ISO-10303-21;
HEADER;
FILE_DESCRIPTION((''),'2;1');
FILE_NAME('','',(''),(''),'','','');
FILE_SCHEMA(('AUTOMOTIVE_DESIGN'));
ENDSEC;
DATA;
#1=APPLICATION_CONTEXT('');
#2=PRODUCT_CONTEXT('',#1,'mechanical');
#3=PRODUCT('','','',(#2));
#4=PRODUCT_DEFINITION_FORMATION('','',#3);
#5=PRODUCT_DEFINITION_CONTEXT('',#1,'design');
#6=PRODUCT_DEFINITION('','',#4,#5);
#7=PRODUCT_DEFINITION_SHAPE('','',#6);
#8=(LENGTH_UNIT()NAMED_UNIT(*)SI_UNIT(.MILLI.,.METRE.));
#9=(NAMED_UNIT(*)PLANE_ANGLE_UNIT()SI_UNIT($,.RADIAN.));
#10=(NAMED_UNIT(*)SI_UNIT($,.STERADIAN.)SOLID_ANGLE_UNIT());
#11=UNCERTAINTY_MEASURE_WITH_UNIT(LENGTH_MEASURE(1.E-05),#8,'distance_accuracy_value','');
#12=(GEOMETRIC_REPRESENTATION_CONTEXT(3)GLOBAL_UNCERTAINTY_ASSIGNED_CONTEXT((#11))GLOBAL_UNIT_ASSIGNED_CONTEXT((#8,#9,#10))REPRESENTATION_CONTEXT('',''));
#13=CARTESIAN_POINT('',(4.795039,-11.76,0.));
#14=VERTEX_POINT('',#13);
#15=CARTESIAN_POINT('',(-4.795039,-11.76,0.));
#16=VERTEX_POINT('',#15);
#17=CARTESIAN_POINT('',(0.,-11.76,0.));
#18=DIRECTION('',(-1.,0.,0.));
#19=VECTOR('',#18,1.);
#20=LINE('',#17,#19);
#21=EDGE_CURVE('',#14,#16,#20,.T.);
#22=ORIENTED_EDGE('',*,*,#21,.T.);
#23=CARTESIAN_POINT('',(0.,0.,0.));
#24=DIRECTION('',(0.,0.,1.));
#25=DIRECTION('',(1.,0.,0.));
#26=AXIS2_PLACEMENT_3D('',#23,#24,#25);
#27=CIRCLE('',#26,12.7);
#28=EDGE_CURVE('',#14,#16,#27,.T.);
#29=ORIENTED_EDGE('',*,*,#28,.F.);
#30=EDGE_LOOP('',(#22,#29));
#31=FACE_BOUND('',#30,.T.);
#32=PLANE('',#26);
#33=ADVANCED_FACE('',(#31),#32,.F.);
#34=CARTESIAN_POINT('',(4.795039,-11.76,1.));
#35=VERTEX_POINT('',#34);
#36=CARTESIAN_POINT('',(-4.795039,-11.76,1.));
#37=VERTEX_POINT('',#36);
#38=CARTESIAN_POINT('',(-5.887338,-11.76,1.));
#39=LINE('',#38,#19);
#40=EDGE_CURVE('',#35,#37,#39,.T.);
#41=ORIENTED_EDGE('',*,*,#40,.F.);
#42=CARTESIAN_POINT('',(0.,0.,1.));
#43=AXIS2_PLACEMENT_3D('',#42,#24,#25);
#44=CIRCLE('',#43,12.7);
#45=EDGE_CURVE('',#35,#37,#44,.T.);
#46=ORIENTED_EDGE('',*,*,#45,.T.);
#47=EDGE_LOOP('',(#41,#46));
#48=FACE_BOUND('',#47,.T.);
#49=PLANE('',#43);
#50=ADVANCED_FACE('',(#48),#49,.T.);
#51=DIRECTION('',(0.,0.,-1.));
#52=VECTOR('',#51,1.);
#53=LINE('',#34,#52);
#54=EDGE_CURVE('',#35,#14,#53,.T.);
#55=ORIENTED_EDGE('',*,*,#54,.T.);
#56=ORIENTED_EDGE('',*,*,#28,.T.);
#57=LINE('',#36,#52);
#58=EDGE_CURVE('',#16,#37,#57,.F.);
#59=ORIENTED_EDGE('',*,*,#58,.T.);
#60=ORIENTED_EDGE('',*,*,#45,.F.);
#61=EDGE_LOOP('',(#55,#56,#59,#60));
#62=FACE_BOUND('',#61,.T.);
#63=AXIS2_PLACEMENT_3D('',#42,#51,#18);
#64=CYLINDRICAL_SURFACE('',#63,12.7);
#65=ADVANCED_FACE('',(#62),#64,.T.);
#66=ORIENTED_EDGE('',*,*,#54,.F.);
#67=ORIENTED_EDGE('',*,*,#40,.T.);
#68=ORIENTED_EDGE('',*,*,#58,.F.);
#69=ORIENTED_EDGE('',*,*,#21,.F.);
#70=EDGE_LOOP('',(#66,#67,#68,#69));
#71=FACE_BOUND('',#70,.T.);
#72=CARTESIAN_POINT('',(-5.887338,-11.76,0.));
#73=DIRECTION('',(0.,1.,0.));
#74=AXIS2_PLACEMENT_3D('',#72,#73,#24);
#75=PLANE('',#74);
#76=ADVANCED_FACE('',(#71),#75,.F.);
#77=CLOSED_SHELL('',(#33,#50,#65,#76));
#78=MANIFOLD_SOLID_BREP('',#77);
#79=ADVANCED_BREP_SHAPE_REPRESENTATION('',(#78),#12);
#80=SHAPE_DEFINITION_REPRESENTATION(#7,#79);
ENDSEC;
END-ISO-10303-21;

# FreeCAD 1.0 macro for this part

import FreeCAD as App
import Part
import Sketcher
from FreeCAD import Vector
Q = App.Units.Quantity

doc = App.newDocument("Part")
body = doc.addObject("PartDesign::Body", "Body")

sketch1 = body.newObject("Sketcher::SketchObject", "Sketch")
sketch1.AttachmentSupport = (doc.getObject("XY_Plane"), [""])
sketch1.MapMode = "FlatFace"
sketch1.addGeometry(Part.Circle(Vector(0, 0, 0), Vector(0, 0, 1), 12.7), False)
sketch1.addConstraint([
    Sketcher.Constraint("Coincident", 0, 3, -1, 1),
    Sketcher.Constraint("Diameter", 0, Q("25.4 mm")),
])
pad1 = body.newObject("PartDesign::Pad", "Pad")
pad1.Profile = sketch1
pad1.Length = 1

sketch2 = body.newObject("Sketcher::SketchObject", "Sketch001")
sketch2.AttachmentSupport = (doc.getObject("XY_Plane"), [""])
sketch2.MapMode = "FlatFace"
sketch2.AttachmentOffset = App.Placement(Vector(0, 0, 1), App.Rotation())
sketch2.addGeometry([
    Part.LineSegment(Vector(-5.887338, -11.76, 0), Vector(-5.887338, -13.685849, 0)),
    Part.LineSegment(Vector(-5.887338, -13.685849, 0), Vector(7.703333, -13.685849, 0)),
    Part.LineSegment(Vector(7.703333, -13.685849, 0), Vector(7.703333, -11.76, 0)),
    Part.LineSegment(Vector(7.703333, -11.76, 0), Vector(-5.887338, -11.76, 0)),
], False)
sketch2.addConstraint([
    Sketcher.Constraint("Coincident", 0, 2, 1, 1),
    Sketcher.Constraint("Coincident", 1, 2, 2, 1),
    Sketcher.Constraint("Coincident", 2, 2, 3, 1),
    Sketcher.Constraint("Coincident", 3, 2, 0, 1),
    Sketcher.Constraint("Vertical", 0),
    Sketcher.Constraint("Horizontal", 1),
    Sketcher.Constraint("Vertical", 2),
    Sketcher.Constraint("Horizontal", 3),
    Sketcher.Constraint("DistanceY", 2, 2, -1, 1, Q("11.76 mm")),
    Sketcher.Constraint("DistanceX", 1, 1, 1, 2, Q("13.590671 mm")),
    Sketcher.Constraint("DistanceY", 0, 2, 0, 1, Q("1.925849 mm")),
    Sketcher.Constraint("DistanceX", 0, 2, -1, 1, Q("5.887338 mm")),
])
pocket1 = body.newObject("PartDesign::Pocket", "Pocket")
pocket1.Profile = sketch2
pocket1.Type = "ThroughAll"

doc.recompute()
